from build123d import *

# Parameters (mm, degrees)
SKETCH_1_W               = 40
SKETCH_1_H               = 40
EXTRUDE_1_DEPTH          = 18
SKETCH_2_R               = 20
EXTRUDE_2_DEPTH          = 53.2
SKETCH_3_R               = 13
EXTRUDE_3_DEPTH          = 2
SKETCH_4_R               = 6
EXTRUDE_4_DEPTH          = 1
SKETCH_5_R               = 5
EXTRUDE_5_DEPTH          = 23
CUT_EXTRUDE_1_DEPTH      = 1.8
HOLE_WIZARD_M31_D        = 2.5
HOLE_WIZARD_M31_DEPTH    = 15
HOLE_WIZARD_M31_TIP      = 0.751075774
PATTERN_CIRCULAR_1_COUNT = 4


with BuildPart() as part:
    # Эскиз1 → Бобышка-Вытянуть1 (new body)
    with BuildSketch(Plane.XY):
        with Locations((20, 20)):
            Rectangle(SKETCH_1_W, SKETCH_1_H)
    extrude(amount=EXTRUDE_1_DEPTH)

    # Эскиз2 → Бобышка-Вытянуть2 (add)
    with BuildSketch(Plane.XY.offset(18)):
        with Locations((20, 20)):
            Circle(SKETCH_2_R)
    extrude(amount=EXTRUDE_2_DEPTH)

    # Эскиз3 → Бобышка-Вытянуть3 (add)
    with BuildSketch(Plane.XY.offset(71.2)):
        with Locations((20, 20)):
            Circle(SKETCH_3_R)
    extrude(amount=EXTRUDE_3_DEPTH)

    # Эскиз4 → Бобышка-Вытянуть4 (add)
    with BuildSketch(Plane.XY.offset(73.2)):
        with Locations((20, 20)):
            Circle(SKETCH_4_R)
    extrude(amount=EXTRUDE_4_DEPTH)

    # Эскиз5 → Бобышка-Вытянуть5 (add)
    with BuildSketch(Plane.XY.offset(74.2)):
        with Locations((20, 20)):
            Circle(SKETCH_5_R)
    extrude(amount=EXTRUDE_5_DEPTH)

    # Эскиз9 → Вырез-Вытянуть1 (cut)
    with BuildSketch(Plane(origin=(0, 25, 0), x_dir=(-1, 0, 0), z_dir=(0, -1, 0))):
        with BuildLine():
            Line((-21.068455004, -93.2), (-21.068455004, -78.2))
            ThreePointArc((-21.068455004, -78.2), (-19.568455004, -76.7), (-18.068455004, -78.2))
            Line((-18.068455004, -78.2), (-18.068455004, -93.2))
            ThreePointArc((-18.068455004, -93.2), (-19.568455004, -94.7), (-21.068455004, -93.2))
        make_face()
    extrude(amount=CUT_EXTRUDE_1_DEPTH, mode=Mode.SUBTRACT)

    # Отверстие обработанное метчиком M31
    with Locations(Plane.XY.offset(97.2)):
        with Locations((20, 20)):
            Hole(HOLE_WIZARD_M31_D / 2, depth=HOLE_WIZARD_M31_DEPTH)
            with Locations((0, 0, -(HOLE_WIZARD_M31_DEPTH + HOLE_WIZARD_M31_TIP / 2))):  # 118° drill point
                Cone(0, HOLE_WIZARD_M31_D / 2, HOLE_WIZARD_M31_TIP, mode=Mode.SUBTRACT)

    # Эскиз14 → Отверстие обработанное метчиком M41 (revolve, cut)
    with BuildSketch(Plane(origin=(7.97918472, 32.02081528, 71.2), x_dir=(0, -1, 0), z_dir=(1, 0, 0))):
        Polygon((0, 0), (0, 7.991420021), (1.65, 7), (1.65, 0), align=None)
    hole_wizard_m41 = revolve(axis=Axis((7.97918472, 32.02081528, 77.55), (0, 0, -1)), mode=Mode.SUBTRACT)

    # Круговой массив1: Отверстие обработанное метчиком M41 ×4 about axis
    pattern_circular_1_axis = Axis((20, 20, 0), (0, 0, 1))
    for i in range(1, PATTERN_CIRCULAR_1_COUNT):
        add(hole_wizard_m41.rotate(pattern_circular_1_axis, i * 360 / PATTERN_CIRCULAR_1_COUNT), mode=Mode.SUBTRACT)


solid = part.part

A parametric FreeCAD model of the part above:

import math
import FreeCAD as App
import Part
import Sketcher
Q = App.Units.Quantity

doc = App.newDocument("Part")
body = doc.addObject("PartDesign::Body", "Body")

sketch1 = body.newObject("Sketcher::SketchObject", "Sketch")
sketch1.AttachmentSupport = (doc.getObject("XY_Plane"), [""])
sketch1.MapMode = "FlatFace"
sketch1.addGeometry(Part.LineSegment(App.Vector(0, 40, 0), App.Vector(0, 0, 0)), False)
sketch1.addGeometry(Part.LineSegment(App.Vector(0, 0, 0), App.Vector(40, 0, 0)), False)
sketch1.addGeometry(Part.LineSegment(App.Vector(40, 0, 0), App.Vector(40, 40, 0)), False)
sketch1.addGeometry(Part.LineSegment(App.Vector(40, 40, 0), App.Vector(0, 40, 0)), False)
sketch1.addConstraint(Sketcher.Constraint("Coincident", 0, 2, 1, 1))
sketch1.addConstraint(Sketcher.Constraint("Coincident", 1, 2, 2, 1))
sketch1.addConstraint(Sketcher.Constraint("Coincident", 2, 2, 3, 1))
sketch1.addConstraint(Sketcher.Constraint("Coincident", 3, 2, 0, 1))
sketch1.addConstraint(Sketcher.Constraint("Vertical", 0))
sketch1.addConstraint(Sketcher.Constraint("Horizontal", 1))
sketch1.addConstraint(Sketcher.Constraint("Vertical", 2))
sketch1.addConstraint(Sketcher.Constraint("Horizontal", 3))
sketch1.addConstraint(Sketcher.Constraint("Coincident", 0, 2, -1, 1))
sketch1.addConstraint(Sketcher.Constraint("Equal", 3, 0))
sketch1.addConstraint(Sketcher.Constraint("DistanceX", 1, 1, 1, 2, 40.0))
pad1 = body.newObject("PartDesign::Pad", "Pad")
pad1.Profile = sketch1
pad1.Length = 18

sketch2 = body.newObject("Sketcher::SketchObject", "Sketch001")
sketch2.AttachmentSupport = (doc.getObject("XY_Plane"), [""])
sketch2.MapMode = "FlatFace"
sketch2.AttachmentOffset = App.Placement(App.Vector(0, 0, 18), App.Rotation())
sketch2.addGeometry(Part.Circle(App.Vector(20, 20, 0), App.Vector(0, 0, 1), 20), False)
sketch2.addConstraint(Sketcher.Constraint("Diameter", 0, 40.0))
sketch2.addConstraint(Sketcher.Constraint("DistanceX", -1, 1, 0, 3, 20.0))
sketch2.addConstraint(Sketcher.Constraint("DistanceY", -1, 1, 0, 3, 20.0))
pad2 = body.newObject("PartDesign::Pad", "Pad001")
pad2.Profile = sketch2
pad2.Length = 53.2

sketch3 = body.newObject("Sketcher::SketchObject", "Sketch002")
sketch3.AttachmentSupport = (doc.getObject("XY_Plane"), [""])
sketch3.MapMode = "FlatFace"
sketch3.AttachmentOffset = App.Placement(App.Vector(0, 0, 71.2), App.Rotation())
sketch3.addGeometry(Part.Circle(App.Vector(20, 20, 0), App.Vector(0, 0, 1), 13), False)
sketch3.addConstraint(Sketcher.Constraint("Diameter", 0, 26.0))
sketch3.addConstraint(Sketcher.Constraint("DistanceX", -1, 1, 0, 3, 20.0))
sketch3.addConstraint(Sketcher.Constraint("DistanceY", -1, 1, 0, 3, 20.0))
pad3 = body.newObject("PartDesign::Pad", "Pad002")
pad3.Profile = sketch3
pad3.Length = 2

sketch4 = body.newObject("Sketcher::SketchObject", "Sketch003")
sketch4.AttachmentSupport = (doc.getObject("XY_Plane"), [""])
sketch4.MapMode = "FlatFace"
sketch4.AttachmentOffset = App.Placement(App.Vector(0, 0, 73.2), App.Rotation())
sketch4.addGeometry(Part.Circle(App.Vector(20, 20, 0), App.Vector(0, 0, 1), 6), False)
sketch4.addConstraint(Sketcher.Constraint("Diameter", 0, 12.0))
sketch4.addConstraint(Sketcher.Constraint("DistanceX", -1, 1, 0, 3, 20.0))
sketch4.addConstraint(Sketcher.Constraint("DistanceY", -1, 1, 0, 3, 20.0))
pad4 = body.newObject("PartDesign::Pad", "Pad003")
pad4.Profile = sketch4
pad4.Length = 1

sketch5 = body.newObject("Sketcher::SketchObject", "Sketch004")
sketch5.AttachmentSupport = (doc.getObject("XY_Plane"), [""])
sketch5.MapMode = "FlatFace"
sketch5.AttachmentOffset = App.Placement(App.Vector(0, 0, 74.2), App.Rotation())
sketch5.addGeometry(Part.Circle(App.Vector(20, 20, 0), App.Vector(0, 0, 1), 5), False)
sketch5.addConstraint(Sketcher.Constraint("Diameter", 0, 10.0))
sketch5.addConstraint(Sketcher.Constraint("DistanceX", -1, 1, 0, 3, 20.0))
sketch5.addConstraint(Sketcher.Constraint("DistanceY", -1, 1, 0, 3, 20.0))
pad5 = body.newObject("PartDesign::Pad", "Pad004")
pad5.Profile = sketch5
pad5.Length = 23

sketch6 = body.newObject("Sketcher::SketchObject", "Sketch005")
sketch6.AttachmentSupport = (doc.getObject("XZ_Plane"), [""])
sketch6.MapMode = "FlatFace"
sketch6.AttachmentOffset = App.Placement(App.Vector(0, 0, -25), App.Rotation())
sketch6.addGeometry(Part.LineSegment(App.Vector(21.068455, 78.2, 0), App.Vector(21.068455, 93.2, 0)), False)
sketch6.addGeometry(Part.ArcOfCircle(Part.Circle(App.Vector(19.568455, 93.2, 0), App.Vector(0, 0, 1), 1.5), math.radians(0), math.radians(180)), False)
sketch6.addGeometry(Part.LineSegment(App.Vector(18.068455, 93.2, 0), App.Vector(18.068455, 78.2, 0)), False)
sketch6.addGeometry(Part.ArcOfCircle(Part.Circle(App.Vector(19.568455, 78.2, 0), App.Vector(0, 0, 1), 1.5), math.radians(180), math.radians(360)), False)
sketch6.addConstraint(Sketcher.Constraint("Tangent", 0, 2, 1, 1))
sketch6.addConstraint(Sketcher.Constraint("Tangent", 1, 2, 2, 1))
sketch6.addConstraint(Sketcher.Constraint("Tangent", 2, 2, 3, 1))
sketch6.addConstraint(Sketcher.Constraint("Tangent", 3, 2, 0, 1))
sketch6.addConstraint(Sketcher.Constraint("Vertical", 0))
sketch6.addConstraint(Sketcher.Constraint("Vertical", 2))
sketch6.addConstraint(Sketcher.Constraint("Radius", 1, 1.5))
sketch6.addConstraint(Sketcher.Constraint("DistanceY", 0, 1, 0, 2, 15.0))
sketch6.addConstraint(Sketcher.Constraint("DistanceY", -1, 1, 1, 3, 93.2))
sketch6.addConstraint(Sketcher.Constraint("DistanceX", -1, 1, 1, 3, 19.568455))
pocket1 = body.newObject("PartDesign::Pocket", "Pocket")
pocket1.Profile = sketch6
pocket1.Length = 1.8
pocket1.Reversed = True

sketch7 = body.newObject("Sketcher::SketchObject", "Sketch006")
sketch7.AttachmentSupport = (doc.getObject("XY_Plane"), [""])
sketch7.MapMode = "FlatFace"
sketch7.AttachmentOffset = App.Placement(App.Vector(0, 0, 97.2), App.Rotation())
sketch7.addGeometry(Part.Circle(App.Vector(20, 20, 0), App.Vector(0, 0, 1), 1.25), False)
sketch7.addConstraint(Sketcher.Constraint("Diameter", 0, 2.5))
sketch7.addConstraint(Sketcher.Constraint("DistanceX", -1, 1, 0, 3, 20.0))
sketch7.addConstraint(Sketcher.Constraint("DistanceY", -1, 1, 0, 3, 20.0))
doc.recompute()
hole = body.newObject("PartDesign::Hole", "Hole")
hole.Profile = sketch7
hole.ThreadType = "None"
hole.Diameter = 2.5
hole.DepthType = "Dimension"
hole.Depth = 15
hole.DrillPoint = "Angled"
hole.DrillPointAngle = 118

sketch8 = body.newObject("Sketcher::SketchObject", "Sketch007")
sketch8.AttachmentSupport = (doc.getObject("YZ_Plane"), [""])
sketch8.MapMode = "FlatFace"
sketch8.AttachmentOffset = App.Placement(App.Vector(0, 0, 7.979185), App.Rotation())
sketch8.addGeometry(Part.LineSegment(App.Vector(32.020815, 63.20858, 0), App.Vector(32.020815, 71.2, 0)), False)
sketch8.addGeometry(Part.LineSegment(App.Vector(32.020815, 71.2, 0), App.Vector(30.370815, 71.2, 0)), False)
sketch8.addGeometry(Part.LineSegment(App.Vector(30.370815, 71.2, 0), App.Vector(30.370815, 64.2, 0)), False)
sketch8.addGeometry(Part.LineSegment(App.Vector(30.370815, 64.2, 0), App.Vector(32.020815, 63.20858, 0)), False)
sketch8.addGeometry(Part.LineSegment(App.Vector(32.020815, 71.2, 0), App.Vector(32.020815, 63.20858, 0)), True)
sketch8.addConstraint(Sketcher.Constraint("Coincident", 0, 2, 1, 1))
sketch8.addConstraint(Sketcher.Constraint("Coincident", 1, 2, 2, 1))
sketch8.addConstraint(Sketcher.Constraint("Coincident", 2, 2, 3, 1))
sketch8.addConstraint(Sketcher.Constraint("Coincident", 3, 2, 0, 1))
sketch8.addConstraint(Sketcher.Constraint("Vertical", 0))
sketch8.addConstraint(Sketcher.Constraint("Horizontal", 1))
sketch8.addConstraint(Sketcher.Constraint("Vertical", 2))
sketch8.addConstraint(Sketcher.Constraint("Vertical", 4))
sketch8.addConstraint(Sketcher.Constraint("Coincident", 4, 1, 0, 2))
sketch8.addConstraint(Sketcher.Constraint("Equal", 0, 4))
sketch8.addConstraint(Sketcher.Constraint("DistanceY", 2, 2, 2, 1, 7.0))
sketch8.addConstraint(Sketcher.Constraint("Angle", 3, Q("-31 deg")))
sketch8.addConstraint(Sketcher.Constraint("DistanceX", 1, 2, 1, 1, 1.65))
sketch8.addConstraint(Sketcher.Constraint("DistanceY", -1, 1, 0, 2, 71.2))
sketch8.addConstraint(Sketcher.Constraint("DistanceX", -1, 1, 0, 2, 32.020815))
groove = body.newObject("PartDesign::Groove", "Groove")
groove.Profile = sketch8
groove.ReferenceAxis = (sketch8, ["Axis0"])
groove.Angle = 360
doc.recompute()

datumline = body.newObject("PartDesign::Line", "DatumLine")
datumline.Placement = App.Placement(App.Vector(20, 20, 0), App.Rotation(App.Vector(0, 0, 1), App.Vector(0, 0, 1)))
polarpattern = body.newObject("PartDesign::PolarPattern", "PolarPattern")
polarpattern.Originals = [groove]
polarpattern.Axis = (datumline, [""])
polarpattern.Angle = 360
polarpattern.Occurrences = 4
body.Tip = polarpattern

doc.recompute()
